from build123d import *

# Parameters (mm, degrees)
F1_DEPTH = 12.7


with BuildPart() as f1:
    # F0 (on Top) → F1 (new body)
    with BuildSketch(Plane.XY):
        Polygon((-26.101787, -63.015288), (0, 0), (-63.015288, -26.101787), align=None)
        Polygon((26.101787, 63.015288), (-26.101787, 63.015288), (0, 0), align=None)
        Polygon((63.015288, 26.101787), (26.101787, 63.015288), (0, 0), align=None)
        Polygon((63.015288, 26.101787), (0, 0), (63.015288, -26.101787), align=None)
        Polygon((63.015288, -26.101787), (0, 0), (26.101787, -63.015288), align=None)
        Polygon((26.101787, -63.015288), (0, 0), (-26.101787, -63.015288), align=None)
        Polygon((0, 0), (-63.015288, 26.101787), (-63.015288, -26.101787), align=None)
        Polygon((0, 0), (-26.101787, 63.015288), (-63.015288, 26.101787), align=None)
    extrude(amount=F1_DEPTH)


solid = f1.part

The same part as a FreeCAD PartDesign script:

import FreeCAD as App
import Part
import Sketcher
Q = App.Units.Quantity

doc = App.newDocument("Part")
body = doc.addObject("PartDesign::Body", "Body")

# Sketch on XY plane
sketch1 = body.newObject("Sketcher::SketchObject", "Sketch")
sketch1.AttachmentSupport = (doc.getObject("XY_Plane"), [""])
sketch1.MapMode = "FlatFace"
sketch1.addGeometry(Part.LineSegment(App.Vector(-63, -26, 0), App.Vector(-26, -63, 0)), False)
sketch1.addGeometry(Part.LineSegment(App.Vector(-26, -63, 0), App.Vector(26, -63, 0)), False)
sketch1.addGeometry(Part.LineSegment(App.Vector(26, -63, 0), App.Vector(63, -26, 0)), False)
sketch1.addGeometry(Part.LineSegment(App.Vector(63, -26, 0), App.Vector(63, 26, 0)), False)
sketch1.addGeometry(Part.LineSegment(App.Vector(63, 26, 0), App.Vector(26, 63, 0)), False)
sketch1.addGeometry(Part.LineSegment(App.Vector(26, 63, 0), App.Vector(-26, 63, 0)), False)
sketch1.addGeometry(Part.LineSegment(App.Vector(-26, 63, 0), App.Vector(-63, 26, 0)), False)
sketch1.addGeometry(Part.LineSegment(App.Vector(-63, 26, 0), App.Vector(-63, -26, 0)), False)
sketch1.addConstraint(Sketcher.Constraint("Coincident", 0, 2, 1, 1))
sketch1.addConstraint(Sketcher.Constraint("Coincident", 1, 2, 2, 1))
sketch1.addConstraint(Sketcher.Constraint("Coincident", 2, 2, 3, 1))
sketch1.addConstraint(Sketcher.Constraint("Coincident", 3, 2, 4, 1))
sketch1.addConstraint(Sketcher.Constraint("Coincident", 4, 2, 5, 1))
sketch1.addConstraint(Sketcher.Constraint("Coincident", 5, 2, 6, 1))
sketch1.addConstraint(Sketcher.Constraint("Coincident", 6, 2, 7, 1))
sketch1.addConstraint(Sketcher.Constraint("Coincident", 7, 2, 0, 1))
sketch1.addConstraint(Sketcher.Constraint("Horizontal", 1))
sketch1.addConstraint(Sketcher.Constraint("Vertical", 3))
sketch1.addConstraint(Sketcher.Constraint("Horizontal", 5))
sketch1.addConstraint(Sketcher.Constraint("Vertical", 7))
sketch1.addConstraint(Sketcher.Constraint("Symmetric", 0, 2, 4, 2, -1, 1))
sketch1.addConstraint(Sketcher.Constraint("Symmetric", 2, 2, 6, 2, -1, 1))
sketch1.addConstraint(Sketcher.Constraint("Perpendicular", 0, 2))
sketch1.addConstraint(Sketcher.Constraint("Perpendicular", 2, 4))
sketch1.addConstraint(Sketcher.Constraint("Perpendicular", 4, 6))
sketch1.addConstraint(Sketcher.Constraint("Horizontal", 3, 2, 6, 2))
sketch1.addConstraint(Sketcher.Constraint("Vertical", 1, 2, 4, 2))
sketch1.addConstraint(Sketcher.Constraint("Equal", 5, 3))
sketch1.addConstraint(Sketcher.Constraint("DistanceX", 1, 2, 2, 2, 36.913501))
sketch1.addConstraint(Sketcher.Constraint("DistanceX", 1, 1, 1, 2, 52.203574))
pad1 = body.newObject("PartDesign::Pad", "Pad")
pad1.Profile = sketch1
pad1.Length = Q("0.5 in")

doc.recompute()
